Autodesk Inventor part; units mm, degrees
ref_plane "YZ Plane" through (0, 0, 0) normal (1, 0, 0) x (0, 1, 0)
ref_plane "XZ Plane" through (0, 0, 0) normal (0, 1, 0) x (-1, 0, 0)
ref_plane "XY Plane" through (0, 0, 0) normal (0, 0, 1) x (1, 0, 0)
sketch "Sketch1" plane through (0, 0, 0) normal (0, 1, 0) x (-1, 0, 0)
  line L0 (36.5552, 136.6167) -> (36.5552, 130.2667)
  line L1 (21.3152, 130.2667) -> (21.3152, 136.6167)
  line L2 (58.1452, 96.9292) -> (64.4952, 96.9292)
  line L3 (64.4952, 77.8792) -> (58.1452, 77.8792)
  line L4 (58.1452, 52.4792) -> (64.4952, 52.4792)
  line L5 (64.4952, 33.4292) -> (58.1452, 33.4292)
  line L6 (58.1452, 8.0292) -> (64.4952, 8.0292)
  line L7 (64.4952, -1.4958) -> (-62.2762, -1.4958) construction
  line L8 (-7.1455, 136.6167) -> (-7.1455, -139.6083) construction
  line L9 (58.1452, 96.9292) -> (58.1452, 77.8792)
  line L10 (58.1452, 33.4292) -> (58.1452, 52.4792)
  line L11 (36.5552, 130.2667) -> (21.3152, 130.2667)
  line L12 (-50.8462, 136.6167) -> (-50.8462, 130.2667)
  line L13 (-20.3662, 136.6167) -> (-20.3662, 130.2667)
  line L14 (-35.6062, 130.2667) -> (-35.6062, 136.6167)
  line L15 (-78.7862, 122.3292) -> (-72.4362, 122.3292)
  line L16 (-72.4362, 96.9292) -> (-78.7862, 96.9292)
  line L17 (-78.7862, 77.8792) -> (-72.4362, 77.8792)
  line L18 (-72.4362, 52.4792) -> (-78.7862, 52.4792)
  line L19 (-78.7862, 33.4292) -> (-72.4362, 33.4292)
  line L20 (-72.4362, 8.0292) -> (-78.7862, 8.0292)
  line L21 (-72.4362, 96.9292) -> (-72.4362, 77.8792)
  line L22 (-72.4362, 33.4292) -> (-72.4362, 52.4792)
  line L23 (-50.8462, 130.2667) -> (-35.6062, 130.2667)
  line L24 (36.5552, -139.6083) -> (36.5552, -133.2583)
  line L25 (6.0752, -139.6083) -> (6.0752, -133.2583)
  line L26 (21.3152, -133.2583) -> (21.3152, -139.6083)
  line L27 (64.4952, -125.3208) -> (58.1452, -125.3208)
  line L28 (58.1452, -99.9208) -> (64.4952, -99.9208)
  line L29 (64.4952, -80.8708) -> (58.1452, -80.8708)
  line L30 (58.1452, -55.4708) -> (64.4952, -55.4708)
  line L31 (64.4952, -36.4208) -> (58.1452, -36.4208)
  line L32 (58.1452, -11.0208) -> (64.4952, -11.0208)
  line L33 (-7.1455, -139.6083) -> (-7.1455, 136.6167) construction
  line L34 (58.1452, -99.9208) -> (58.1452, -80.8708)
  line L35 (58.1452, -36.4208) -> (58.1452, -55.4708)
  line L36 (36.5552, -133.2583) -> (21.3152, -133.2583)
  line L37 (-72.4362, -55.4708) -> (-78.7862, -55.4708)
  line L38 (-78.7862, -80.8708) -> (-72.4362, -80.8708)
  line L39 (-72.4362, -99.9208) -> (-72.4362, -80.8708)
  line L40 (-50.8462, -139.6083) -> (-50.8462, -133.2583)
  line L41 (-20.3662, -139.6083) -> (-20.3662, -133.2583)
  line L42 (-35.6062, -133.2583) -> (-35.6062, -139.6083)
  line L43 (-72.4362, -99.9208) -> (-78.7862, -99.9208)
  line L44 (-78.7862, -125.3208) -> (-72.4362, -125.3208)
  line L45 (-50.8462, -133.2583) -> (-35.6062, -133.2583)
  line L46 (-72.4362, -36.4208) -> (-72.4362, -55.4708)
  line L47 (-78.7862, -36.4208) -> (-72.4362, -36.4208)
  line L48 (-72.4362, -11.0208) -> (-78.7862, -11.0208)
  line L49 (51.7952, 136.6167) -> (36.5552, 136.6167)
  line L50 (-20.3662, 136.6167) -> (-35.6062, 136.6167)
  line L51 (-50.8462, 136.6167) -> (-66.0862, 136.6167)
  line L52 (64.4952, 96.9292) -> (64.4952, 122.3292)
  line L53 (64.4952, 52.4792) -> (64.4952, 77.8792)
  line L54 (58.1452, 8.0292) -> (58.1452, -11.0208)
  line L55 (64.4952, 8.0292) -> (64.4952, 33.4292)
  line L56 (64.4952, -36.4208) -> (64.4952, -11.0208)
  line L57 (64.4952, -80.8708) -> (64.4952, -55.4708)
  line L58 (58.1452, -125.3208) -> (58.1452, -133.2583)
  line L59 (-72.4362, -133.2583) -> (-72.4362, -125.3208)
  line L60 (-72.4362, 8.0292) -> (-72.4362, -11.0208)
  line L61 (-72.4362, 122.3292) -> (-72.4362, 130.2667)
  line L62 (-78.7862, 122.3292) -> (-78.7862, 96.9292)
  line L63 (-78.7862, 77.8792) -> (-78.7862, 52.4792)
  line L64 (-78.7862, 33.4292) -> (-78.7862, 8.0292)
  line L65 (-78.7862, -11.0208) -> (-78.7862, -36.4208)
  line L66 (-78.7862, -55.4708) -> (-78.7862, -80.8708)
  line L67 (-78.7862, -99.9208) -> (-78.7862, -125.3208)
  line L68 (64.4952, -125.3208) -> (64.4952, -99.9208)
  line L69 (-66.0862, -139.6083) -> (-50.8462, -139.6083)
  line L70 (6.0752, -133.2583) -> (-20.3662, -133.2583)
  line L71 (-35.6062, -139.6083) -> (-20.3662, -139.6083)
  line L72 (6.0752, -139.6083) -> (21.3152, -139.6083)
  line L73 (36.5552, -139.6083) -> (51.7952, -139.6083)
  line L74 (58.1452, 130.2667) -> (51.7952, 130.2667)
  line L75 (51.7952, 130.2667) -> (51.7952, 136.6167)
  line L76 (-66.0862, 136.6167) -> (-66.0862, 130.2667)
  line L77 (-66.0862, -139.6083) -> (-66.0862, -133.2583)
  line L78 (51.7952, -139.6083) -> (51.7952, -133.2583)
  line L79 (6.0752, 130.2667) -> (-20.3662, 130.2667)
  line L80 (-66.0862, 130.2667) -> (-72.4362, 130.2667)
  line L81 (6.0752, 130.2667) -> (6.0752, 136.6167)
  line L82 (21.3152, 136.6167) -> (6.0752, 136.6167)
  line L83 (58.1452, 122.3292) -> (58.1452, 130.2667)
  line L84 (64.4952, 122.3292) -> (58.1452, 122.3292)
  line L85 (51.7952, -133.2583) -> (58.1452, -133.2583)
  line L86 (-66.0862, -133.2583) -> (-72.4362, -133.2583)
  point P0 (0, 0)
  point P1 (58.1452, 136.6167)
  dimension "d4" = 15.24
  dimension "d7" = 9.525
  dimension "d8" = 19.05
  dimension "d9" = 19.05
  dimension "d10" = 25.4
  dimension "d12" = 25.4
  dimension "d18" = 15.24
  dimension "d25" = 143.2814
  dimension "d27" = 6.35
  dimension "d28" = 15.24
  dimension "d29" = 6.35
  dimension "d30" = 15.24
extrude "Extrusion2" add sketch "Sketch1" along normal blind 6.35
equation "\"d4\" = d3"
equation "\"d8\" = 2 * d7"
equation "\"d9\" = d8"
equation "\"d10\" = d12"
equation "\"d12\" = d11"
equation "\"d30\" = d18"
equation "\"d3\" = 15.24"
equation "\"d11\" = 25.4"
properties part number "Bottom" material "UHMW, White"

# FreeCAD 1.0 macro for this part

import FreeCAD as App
import Part
import Sketcher
Q = App.Units.Quantity


def add_polygon(sketch, points):
    """Adds a closed chain of lines whose ends are joined by coincident constraints."""
    first, n = sketch.GeometryCount, len(points)
    for a, b in zip(points, points[1:] + points[:1]):
        sketch.addGeometry(Part.LineSegment(App.Vector(*a, 0), App.Vector(*b, 0)), False)
    for i in range(n):
        sketch.addConstraint(Sketcher.Constraint("Coincident", first + i, 2, first + (i + 1) % n, 1))

doc = App.newDocument("Part")
body = doc.addObject("PartDesign::Body", "Body")

sketch1 = body.newObject("Sketcher::SketchObject", "Sketch")
sketch1.AttachmentSupport = (doc.getObject("XZ_Plane"), [""])
sketch1.MapMode = "FlatFace"
add_polygon(sketch1, [(-52, 137), (-37, 137), (-37, 130), (-21, 130), (-21, 137), (-6, 137), (-6, 130), (20, 130), (20, 137), (36, 137), (36, 130), (51, 130), (51, 137), (66, 137), (66, 130), (72, 130), (72, 122), (79, 122), (79, 97), (72, 97), (72, 78), (79, 78), (79, 52), (72, 52), (72, 33), (79, 33), (79, 8), (72, 8), (72, -11), (79, -11), (79, -36), (72, -36), (72, -55), (79, -55), (79, -81), (72, -81), (72, -100), (79, -100), (79, -125), (72, -125), (72, -133), (66, -133), (66, -140), (51, -140), (51, -133), (36, -133), (36, -140), (20, -140), (20, -133), (-6, -133), (-6, -140), (-21, -140), (-21, -133), (-37, -133), (-37, -140), (-52, -140), (-52, -133), (-58, -133), (-58, -125), (-64, -125), (-64, -100), (-58, -100), (-58, -81), (-64, -81), (-64, -55), (-58, -55), (-58, -36), (-64, -36), (-64, -11), (-58, -11), (-58, 8), (-64, 8), (-64, 33), (-58, 33), (-58, 52), (-64, 52), (-64, 78), (-58, 78), (-58, 97), (-64, 97), (-64, 122), (-58, 122), (-58, 130), (-52, 130)])
sketch1.addConstraint([
    Sketcher.Constraint("Horizontal", 0),
    Sketcher.Constraint("Vertical", 1),
    Sketcher.Constraint("Horizontal", 2),
    Sketcher.Constraint("Vertical", 3),
    Sketcher.Constraint("Horizontal", 4),
    Sketcher.Constraint("Vertical", 5),
    Sketcher.Constraint("Horizontal", 6),
    Sketcher.Constraint("Vertical", 7),
    Sketcher.Constraint("Horizontal", 8),
    Sketcher.Constraint("Vertical", 9),
    Sketcher.Constraint("Horizontal", 10),
    Sketcher.Constraint("Vertical", 11),
    Sketcher.Constraint("Horizontal", 12),
    Sketcher.Constraint("Vertical", 13),
    Sketcher.Constraint("Horizontal", 14),
    Sketcher.Constraint("Vertical", 15),
    Sketcher.Constraint("Horizontal", 16),
    Sketcher.Constraint("Vertical", 17),
    Sketcher.Constraint("Horizontal", 18),
    Sketcher.Constraint("Vertical", 19),
    Sketcher.Constraint("Horizontal", 20),
    Sketcher.Constraint("Vertical", 21),
    Sketcher.Constraint("Horizontal", 22),
    Sketcher.Constraint("Vertical", 23),
    Sketcher.Constraint("Horizontal", 24),
    Sketcher.Constraint("Vertical", 25),
    Sketcher.Constraint("Horizontal", 26),
    Sketcher.Constraint("Vertical", 27),
    Sketcher.Constraint("Horizontal", 28),
    Sketcher.Constraint("Vertical", 29),
    Sketcher.Constraint("Horizontal", 30),
    Sketcher.Constraint("Vertical", 31),
    Sketcher.Constraint("Horizontal", 32),
    Sketcher.Constraint("Vertical", 33),
    Sketcher.Constraint("Horizontal", 34),
    Sketcher.Constraint("Vertical", 35),
    Sketcher.Constraint("Horizontal", 36),
    Sketcher.Constraint("Vertical", 37),
    Sketcher.Constraint("Horizontal", 38),
    Sketcher.Constraint("Vertical", 39),
    Sketcher.Constraint("Horizontal", 40),
    Sketcher.Constraint("Vertical", 41),
    Sketcher.Constraint("Horizontal", 42),
    Sketcher.Constraint("Vertical", 43),
    Sketcher.Constraint("Horizontal", 44),
    Sketcher.Constraint("Vertical", 45),
    Sketcher.Constraint("Horizontal", 46),
    Sketcher.Constraint("Vertical", 47),
    Sketcher.Constraint("Horizontal", 48),
    Sketcher.Constraint("Vertical", 49),
    Sketcher.Constraint("Horizontal", 50),
    Sketcher.Constraint("Vertical", 51),
    Sketcher.Constraint("Horizontal", 52),
    Sketcher.Constraint("Vertical", 53),
    Sketcher.Constraint("Horizontal", 54),
    Sketcher.Constraint("Vertical", 55),
    Sketcher.Constraint("Horizontal", 56),
    Sketcher.Constraint("Vertical", 57),
    Sketcher.Constraint("Horizontal", 58),
    Sketcher.Constraint("Vertical", 59),
    Sketcher.Constraint("Horizontal", 60),
    Sketcher.Constraint("Vertical", 61),
    Sketcher.Constraint("Horizontal", 62),
    Sketcher.Constraint("Vertical", 63),
    Sketcher.Constraint("Horizontal", 64),
    Sketcher.Constraint("Vertical", 65),
    Sketcher.Constraint("Horizontal", 66),
    Sketcher.Constraint("Vertical", 67),
    Sketcher.Constraint("Horizontal", 68),
    Sketcher.Constraint("Vertical", 69),
    Sketcher.Constraint("Horizontal", 70),
    Sketcher.Constraint("Vertical", 71),
    Sketcher.Constraint("Horizontal", 72),
    Sketcher.Constraint("Vertical", 73),
    Sketcher.Constraint("Horizontal", 74),
    Sketcher.Constraint("Vertical", 75),
    Sketcher.Constraint("Horizontal", 76),
    Sketcher.Constraint("Vertical", 77),
    Sketcher.Constraint("Horizontal", 78),
    Sketcher.Constraint("Vertical", 79),
    Sketcher.Constraint("Horizontal", 80),
    Sketcher.Constraint("Vertical", 81),
    Sketcher.Constraint("Horizontal", 82),
    Sketcher.Constraint("Vertical", 83),
    Sketcher.Constraint("Horizontal", 0, 2, 3, 2),
    Sketcher.Constraint("Horizontal", 2, 2, 5, 2),
    Sketcher.Constraint("Horizontal", 4, 2, 7, 2),
    Sketcher.Constraint("Horizontal", 6, 2, 9, 2),
    Sketcher.Constraint("Horizontal", 8, 2, 11, 2),
    Sketcher.Constraint("Horizontal", 10, 2, 13, 2),
    Sketcher.Constraint("Horizontal", 40, 2, 43, 2),
    Sketcher.Constraint("Horizontal", 42, 2, 45, 2),
    Sketcher.Constraint("Horizontal", 44, 2, 47, 2),
    Sketcher.Constraint("Horizontal", 46, 2, 49, 2),
    Sketcher.Constraint("Horizontal", 48, 2, 51, 2),
    Sketcher.Constraint("Horizontal", 50, 2, 53, 2),
    Sketcher.Constraint("Horizontal", 52, 2, 55, 2),
    Sketcher.Constraint("Horizontal", 38, 2, 57, 2),
    Sketcher.Constraint("Horizontal", 36, 2, 59, 2),
    Sketcher.Constraint("Horizontal", 34, 2, 61, 2),
    Sketcher.Constraint("Horizontal", 32, 2, 63, 2),
    Sketcher.Constraint("Horizontal", 30, 2, 65, 2),
    Sketcher.Constraint("Horizontal", 28, 2, 67, 2),
    Sketcher.Constraint("Horizontal", 26, 2, 69, 2),
    Sketcher.Constraint("Horizontal", 24, 2, 71, 2),
    Sketcher.Constraint("Horizontal", 22, 2, 73, 2),
    Sketcher.Constraint("Horizontal", 20, 2, 75, 2),
    Sketcher.Constraint("Horizontal", 18, 2, 77, 2),
    Sketcher.Constraint("Horizontal", 16, 2, 79, 2),
    Sketcher.Constraint("Horizontal", 14, 2, 81, 2),
    Sketcher.Constraint("Vertical", 15, 2, 18, 2),
    Sketcher.Constraint("Vertical", 17, 2, 20, 2),
    Sketcher.Constraint("Vertical", 19, 2, 22, 2),
    Sketcher.Constraint("Vertical", 21, 2, 24, 2),
    Sketcher.Constraint("Vertical", 23, 2, 26, 2),
    Sketcher.Constraint("Vertical", 25, 2, 28, 2),
    Sketcher.Constraint("Vertical", 27, 2, 30, 2),
    Sketcher.Constraint("Vertical", 29, 2, 32, 2),
    Sketcher.Constraint("Vertical", 31, 2, 34, 2),
    Sketcher.Constraint("Vertical", 33, 2, 36, 2),
    Sketcher.Constraint("Vertical", 35, 2, 38, 2),
    Sketcher.Constraint("Vertical", 13, 2, 40, 2),
    Sketcher.Constraint("Vertical", 11, 2, 42, 2),
    Sketcher.Constraint("Vertical", 9, 2, 44, 2),
    Sketcher.Constraint("Vertical", 7, 2, 46, 2),
    Sketcher.Constraint("Vertical", 5, 2, 48, 2),
    Sketcher.Constraint("Vertical", 3, 2, 50, 2),
    Sketcher.Constraint("Vertical", 1, 2, 52, 2),
    Sketcher.Constraint("Vertical", 57, 2, 60, 2),
    Sketcher.Constraint("Vertical", 59, 2, 62, 2),
    Sketcher.Constraint("Vertical", 61, 2, 64, 2),
    Sketcher.Constraint("Vertical", 63, 2, 66, 2),
    Sketcher.Constraint("Vertical", 65, 2, 68, 2),
    Sketcher.Constraint("Vertical", 67, 2, 70, 2),
    Sketcher.Constraint("Vertical", 69, 2, 72, 2),
    Sketcher.Constraint("Vertical", 71, 2, 74, 2),
    Sketcher.Constraint("Vertical", 73, 2, 76, 2),
    Sketcher.Constraint("Vertical", 75, 2, 78, 2),
    Sketcher.Constraint("Vertical", 77, 2, 80, 2),
    Sketcher.Constraint("Vertical", 55, 2, 82, 2),
    Sketcher.Constraint("Equal", 0, 2),
    Sketcher.Constraint("Equal", 2, 4),
    Sketcher.Constraint("Equal", 4, 8),
    Sketcher.Constraint("Equal", 8, 10),
    Sketcher.Constraint("Equal", 10, 12),
    Sketcher.Constraint("Equal", 14, 16),
    Sketcher.Constraint("Equal", 40, 56),
    Sketcher.Constraint("Equal", 56, 58),
    Sketcher.Constraint("Equal", 82, 1),
    Sketcher.Constraint("Equal", 17, 21),
    Sketcher.Constraint("Equal", 19, 23),
    Sketcher.Constraint("Equal", 21, 25),
    Sketcher.Constraint("Equal", 23, 27),
    Sketcher.Constraint("Equal", 25, 29),
    Sketcher.Constraint("Equal", 27, 31),
    Sketcher.Constraint("Equal", 29, 33),
    Sketcher.Constraint("Equal", 31, 35),
    Sketcher.Constraint("Equal", 33, 37),
    Sketcher.Constraint("Equal", 15, 39),
    Sketcher.Constraint("Equal", 13, 41),
    Sketcher.Constraint("DistanceY", 17, 2, 17, 1, Q("1 in")),
    Sketcher.Constraint("DistanceX", 0, 1, 0, 2, Q("0.6 in")),
    Sketcher.Constraint("DistanceX", 14, 1, 14, 2, Q("0.25 in")),
    Sketcher.Constraint("DistanceY", 19, 2, 19, 1, Q("0.75 in")),
    Sketcher.Constraint("DistanceX", 6, 1, 6, 2, Q("1.041 in")),
    Sketcher.Constraint("DistanceY", 15, 2, 15, 1, Q("0.3125 in")),
    Sketcher.Constraint("DistanceY", -1, 1, 0, 2, Q("5.3786 in")),
    Sketcher.Constraint("DistanceX", 0, 2, -1, 1, 36.5552),
])
pad1 = body.newObject("PartDesign::Pad", "Pad")
pad1.Profile = sketch1
pad1.Length = Q("0.25 in")
pad1.Reversed = True

doc.recompute()
